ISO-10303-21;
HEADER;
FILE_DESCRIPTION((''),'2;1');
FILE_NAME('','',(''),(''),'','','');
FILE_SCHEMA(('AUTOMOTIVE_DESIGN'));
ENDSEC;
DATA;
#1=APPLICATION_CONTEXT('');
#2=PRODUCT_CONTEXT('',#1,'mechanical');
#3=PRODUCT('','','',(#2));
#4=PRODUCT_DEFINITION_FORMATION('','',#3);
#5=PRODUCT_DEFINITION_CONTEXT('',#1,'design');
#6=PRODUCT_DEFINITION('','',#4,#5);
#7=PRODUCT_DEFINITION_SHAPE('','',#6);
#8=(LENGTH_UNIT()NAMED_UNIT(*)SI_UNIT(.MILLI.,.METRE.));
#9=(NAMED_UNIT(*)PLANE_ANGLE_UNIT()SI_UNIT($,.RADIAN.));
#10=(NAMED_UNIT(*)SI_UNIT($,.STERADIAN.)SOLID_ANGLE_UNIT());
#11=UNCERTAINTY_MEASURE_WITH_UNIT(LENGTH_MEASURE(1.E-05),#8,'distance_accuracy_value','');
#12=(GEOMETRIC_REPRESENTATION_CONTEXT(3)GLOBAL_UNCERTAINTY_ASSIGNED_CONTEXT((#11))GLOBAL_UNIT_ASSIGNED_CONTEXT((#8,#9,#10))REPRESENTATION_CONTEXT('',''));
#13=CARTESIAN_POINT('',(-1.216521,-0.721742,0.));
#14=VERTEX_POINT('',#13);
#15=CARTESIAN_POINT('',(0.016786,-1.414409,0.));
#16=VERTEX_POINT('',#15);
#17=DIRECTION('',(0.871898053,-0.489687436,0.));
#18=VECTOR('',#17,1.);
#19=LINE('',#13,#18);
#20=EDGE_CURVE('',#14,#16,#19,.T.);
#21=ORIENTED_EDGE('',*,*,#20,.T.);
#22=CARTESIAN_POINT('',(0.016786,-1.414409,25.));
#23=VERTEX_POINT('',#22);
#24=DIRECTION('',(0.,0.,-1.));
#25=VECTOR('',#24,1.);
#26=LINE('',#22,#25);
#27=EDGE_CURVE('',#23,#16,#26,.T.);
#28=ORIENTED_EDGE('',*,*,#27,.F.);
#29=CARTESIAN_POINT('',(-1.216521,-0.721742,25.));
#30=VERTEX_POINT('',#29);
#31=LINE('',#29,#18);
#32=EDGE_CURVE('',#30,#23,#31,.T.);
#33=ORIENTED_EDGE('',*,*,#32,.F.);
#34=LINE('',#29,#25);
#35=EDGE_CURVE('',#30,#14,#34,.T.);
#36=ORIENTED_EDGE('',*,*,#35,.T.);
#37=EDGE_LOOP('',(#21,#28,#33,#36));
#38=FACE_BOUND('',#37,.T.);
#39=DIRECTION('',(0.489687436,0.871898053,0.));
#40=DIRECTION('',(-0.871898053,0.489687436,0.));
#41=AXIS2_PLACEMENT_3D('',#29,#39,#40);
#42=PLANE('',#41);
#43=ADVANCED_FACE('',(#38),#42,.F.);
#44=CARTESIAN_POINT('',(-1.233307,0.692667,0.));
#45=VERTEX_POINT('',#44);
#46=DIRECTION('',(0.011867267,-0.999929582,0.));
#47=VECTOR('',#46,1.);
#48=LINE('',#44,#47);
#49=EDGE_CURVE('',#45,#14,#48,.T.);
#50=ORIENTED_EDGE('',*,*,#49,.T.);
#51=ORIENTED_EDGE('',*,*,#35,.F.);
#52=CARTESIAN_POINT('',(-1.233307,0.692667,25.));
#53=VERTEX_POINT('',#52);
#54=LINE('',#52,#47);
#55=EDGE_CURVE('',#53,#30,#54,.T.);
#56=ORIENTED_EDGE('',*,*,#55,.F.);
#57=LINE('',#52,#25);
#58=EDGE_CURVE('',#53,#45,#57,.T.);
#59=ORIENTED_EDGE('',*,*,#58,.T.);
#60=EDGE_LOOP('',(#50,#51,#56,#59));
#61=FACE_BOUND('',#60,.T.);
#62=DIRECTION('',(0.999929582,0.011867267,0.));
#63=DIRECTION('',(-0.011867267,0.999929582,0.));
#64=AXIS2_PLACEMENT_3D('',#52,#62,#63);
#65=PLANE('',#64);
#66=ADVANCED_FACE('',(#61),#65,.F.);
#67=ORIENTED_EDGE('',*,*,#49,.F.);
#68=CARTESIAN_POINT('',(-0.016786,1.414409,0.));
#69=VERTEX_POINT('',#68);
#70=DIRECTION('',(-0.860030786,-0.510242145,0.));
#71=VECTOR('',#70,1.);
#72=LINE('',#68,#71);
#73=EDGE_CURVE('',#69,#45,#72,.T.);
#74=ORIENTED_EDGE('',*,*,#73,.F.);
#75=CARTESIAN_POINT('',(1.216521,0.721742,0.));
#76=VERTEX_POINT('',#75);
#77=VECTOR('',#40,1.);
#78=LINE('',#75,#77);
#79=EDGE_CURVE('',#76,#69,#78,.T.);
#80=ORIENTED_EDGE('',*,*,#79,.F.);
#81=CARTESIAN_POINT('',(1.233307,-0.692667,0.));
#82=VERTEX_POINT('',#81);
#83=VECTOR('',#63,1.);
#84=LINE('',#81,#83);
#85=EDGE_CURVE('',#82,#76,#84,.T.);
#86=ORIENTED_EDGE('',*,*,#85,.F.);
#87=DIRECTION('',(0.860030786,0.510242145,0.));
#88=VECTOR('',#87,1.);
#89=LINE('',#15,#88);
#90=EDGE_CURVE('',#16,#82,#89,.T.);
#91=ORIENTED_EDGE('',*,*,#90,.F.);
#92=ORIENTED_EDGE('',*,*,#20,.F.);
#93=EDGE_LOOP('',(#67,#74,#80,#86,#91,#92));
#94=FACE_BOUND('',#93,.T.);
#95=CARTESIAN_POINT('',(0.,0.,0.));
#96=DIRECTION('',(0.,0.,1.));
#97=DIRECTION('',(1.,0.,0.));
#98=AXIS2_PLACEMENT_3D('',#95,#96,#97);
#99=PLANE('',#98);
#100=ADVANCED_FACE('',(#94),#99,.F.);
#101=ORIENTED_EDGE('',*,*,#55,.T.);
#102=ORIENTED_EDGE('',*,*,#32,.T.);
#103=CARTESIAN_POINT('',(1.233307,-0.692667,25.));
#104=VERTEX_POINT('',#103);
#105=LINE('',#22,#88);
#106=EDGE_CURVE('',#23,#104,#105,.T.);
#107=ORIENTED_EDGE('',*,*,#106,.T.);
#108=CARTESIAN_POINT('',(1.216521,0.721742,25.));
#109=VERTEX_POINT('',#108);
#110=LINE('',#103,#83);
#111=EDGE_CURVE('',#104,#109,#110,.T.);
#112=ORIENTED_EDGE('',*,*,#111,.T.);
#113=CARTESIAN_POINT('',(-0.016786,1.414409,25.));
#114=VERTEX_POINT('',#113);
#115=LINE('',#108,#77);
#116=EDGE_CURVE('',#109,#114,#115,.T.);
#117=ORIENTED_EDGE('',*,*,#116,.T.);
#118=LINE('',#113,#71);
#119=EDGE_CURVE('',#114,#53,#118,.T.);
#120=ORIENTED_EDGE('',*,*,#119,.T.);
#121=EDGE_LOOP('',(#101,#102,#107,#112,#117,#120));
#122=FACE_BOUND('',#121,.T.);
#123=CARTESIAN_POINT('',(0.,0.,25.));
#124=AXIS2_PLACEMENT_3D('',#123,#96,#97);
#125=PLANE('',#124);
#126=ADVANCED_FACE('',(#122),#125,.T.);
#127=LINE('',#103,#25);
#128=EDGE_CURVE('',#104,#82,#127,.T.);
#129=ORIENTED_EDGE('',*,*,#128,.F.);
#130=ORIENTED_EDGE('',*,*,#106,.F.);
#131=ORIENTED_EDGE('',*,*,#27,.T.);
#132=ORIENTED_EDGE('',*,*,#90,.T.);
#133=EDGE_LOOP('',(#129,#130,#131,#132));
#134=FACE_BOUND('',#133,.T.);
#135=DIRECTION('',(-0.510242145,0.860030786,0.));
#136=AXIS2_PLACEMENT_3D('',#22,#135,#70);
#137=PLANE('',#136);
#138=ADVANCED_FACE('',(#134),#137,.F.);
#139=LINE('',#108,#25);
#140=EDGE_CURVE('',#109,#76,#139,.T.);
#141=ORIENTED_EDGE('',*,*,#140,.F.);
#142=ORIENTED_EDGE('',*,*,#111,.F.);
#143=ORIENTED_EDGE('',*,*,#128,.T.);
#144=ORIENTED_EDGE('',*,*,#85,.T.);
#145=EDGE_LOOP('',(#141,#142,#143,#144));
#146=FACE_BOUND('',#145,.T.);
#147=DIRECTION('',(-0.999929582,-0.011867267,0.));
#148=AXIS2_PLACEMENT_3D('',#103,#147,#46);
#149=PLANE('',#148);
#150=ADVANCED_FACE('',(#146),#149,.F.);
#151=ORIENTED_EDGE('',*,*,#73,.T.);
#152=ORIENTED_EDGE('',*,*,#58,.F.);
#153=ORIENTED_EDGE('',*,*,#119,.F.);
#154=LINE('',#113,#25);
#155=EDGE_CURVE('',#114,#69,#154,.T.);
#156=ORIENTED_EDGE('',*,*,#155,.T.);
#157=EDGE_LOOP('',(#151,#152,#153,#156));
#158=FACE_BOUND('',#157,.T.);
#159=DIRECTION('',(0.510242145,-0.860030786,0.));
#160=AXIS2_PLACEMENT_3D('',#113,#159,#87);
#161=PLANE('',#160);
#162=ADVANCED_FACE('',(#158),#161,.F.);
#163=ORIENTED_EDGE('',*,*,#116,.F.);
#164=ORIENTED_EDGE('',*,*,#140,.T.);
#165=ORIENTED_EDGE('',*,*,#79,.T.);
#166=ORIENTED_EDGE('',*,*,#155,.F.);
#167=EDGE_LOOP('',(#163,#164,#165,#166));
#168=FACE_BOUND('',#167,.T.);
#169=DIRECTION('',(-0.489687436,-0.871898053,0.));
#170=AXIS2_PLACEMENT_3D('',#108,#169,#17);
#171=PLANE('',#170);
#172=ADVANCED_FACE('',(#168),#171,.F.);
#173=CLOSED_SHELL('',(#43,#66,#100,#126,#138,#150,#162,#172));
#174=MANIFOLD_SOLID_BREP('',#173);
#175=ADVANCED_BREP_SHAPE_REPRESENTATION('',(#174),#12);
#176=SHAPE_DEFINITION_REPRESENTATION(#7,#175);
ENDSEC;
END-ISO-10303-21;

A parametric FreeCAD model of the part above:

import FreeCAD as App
import Part
import Sketcher
Q = App.Units.Quantity


def add_polygon(sketch, points):
    """Adds a closed chain of lines whose ends are joined by coincident constraints."""
    first, n = sketch.GeometryCount, len(points)
    for a, b in zip(points, points[1:] + points[:1]):
        sketch.addGeometry(Part.LineSegment(App.Vector(*a, 0), App.Vector(*b, 0)), False)
    for i in range(n):
        sketch.addConstraint(Sketcher.Constraint("Coincident", first + i, 2, first + (i + 1) % n, 1))

doc = App.newDocument("Part")
params = doc.addObject("Spreadsheet::Sheet", "Params")
for row, (alias, value) in enumerate([
    ("pad1_length", "25 mm"),
], start=1):
    params.set(f"A{row}", alias)
    params.set(f"B{row}", "=" + value)
    params.setAlias(f"B{row}", alias)

body = doc.addObject("PartDesign::Body", "Body")

# Sketch on XY plane
sketch1 = body.newObject("Sketcher::SketchObject", "Sketch")
sketch1.AttachmentSupport = (doc.getObject("XY_Plane"), [""])
sketch1.MapMode = "FlatFace"
add_polygon(sketch1, [(1.216521, 0.721742), (-0.016786, 1.414409), (-1.233307, 0.692667), (-1.216521, -0.721742), (0.016786, -1.414409), (1.233307, -0.692667)])  # lines 0-5
sketch1.addConstraint(Sketcher.Constraint("Symmetric", 0, 2, 3, 2, -1, 1))
sketch1.addConstraint(Sketcher.Constraint("Symmetric", 1, 2, 4, 2, -1, 1))
sketch1.addConstraint(Sketcher.Constraint("Symmetric", 2, 2, 5, 2, -1, 1))
sketch1.addConstraint(Sketcher.Constraint("Equal", 0, 1))
sketch1.addConstraint(Sketcher.Constraint("Equal", 1, 2))
sketch1.addConstraint(Sketcher.Constraint("Distance", 0, Q("1.414508 mm")))
sketch1.addConstraint(Sketcher.Constraint("DistanceY", -1, 1, 0, 2, Q("1.414409 mm")))
sketch1.addConstraint(Sketcher.Constraint("DistanceX", 2, 2, -1, 1, Q("1.216521 mm")))
sketch1.addConstraint(Sketcher.Constraint("DistanceY", 2, 2, -1, 1, Q("0.721742 mm")))
pad1 = body.newObject("PartDesign::Pad", "Pad")
pad1.Profile = sketch1
pad1.setExpression("Length", "Params.pad1_length")

doc.recompute()
